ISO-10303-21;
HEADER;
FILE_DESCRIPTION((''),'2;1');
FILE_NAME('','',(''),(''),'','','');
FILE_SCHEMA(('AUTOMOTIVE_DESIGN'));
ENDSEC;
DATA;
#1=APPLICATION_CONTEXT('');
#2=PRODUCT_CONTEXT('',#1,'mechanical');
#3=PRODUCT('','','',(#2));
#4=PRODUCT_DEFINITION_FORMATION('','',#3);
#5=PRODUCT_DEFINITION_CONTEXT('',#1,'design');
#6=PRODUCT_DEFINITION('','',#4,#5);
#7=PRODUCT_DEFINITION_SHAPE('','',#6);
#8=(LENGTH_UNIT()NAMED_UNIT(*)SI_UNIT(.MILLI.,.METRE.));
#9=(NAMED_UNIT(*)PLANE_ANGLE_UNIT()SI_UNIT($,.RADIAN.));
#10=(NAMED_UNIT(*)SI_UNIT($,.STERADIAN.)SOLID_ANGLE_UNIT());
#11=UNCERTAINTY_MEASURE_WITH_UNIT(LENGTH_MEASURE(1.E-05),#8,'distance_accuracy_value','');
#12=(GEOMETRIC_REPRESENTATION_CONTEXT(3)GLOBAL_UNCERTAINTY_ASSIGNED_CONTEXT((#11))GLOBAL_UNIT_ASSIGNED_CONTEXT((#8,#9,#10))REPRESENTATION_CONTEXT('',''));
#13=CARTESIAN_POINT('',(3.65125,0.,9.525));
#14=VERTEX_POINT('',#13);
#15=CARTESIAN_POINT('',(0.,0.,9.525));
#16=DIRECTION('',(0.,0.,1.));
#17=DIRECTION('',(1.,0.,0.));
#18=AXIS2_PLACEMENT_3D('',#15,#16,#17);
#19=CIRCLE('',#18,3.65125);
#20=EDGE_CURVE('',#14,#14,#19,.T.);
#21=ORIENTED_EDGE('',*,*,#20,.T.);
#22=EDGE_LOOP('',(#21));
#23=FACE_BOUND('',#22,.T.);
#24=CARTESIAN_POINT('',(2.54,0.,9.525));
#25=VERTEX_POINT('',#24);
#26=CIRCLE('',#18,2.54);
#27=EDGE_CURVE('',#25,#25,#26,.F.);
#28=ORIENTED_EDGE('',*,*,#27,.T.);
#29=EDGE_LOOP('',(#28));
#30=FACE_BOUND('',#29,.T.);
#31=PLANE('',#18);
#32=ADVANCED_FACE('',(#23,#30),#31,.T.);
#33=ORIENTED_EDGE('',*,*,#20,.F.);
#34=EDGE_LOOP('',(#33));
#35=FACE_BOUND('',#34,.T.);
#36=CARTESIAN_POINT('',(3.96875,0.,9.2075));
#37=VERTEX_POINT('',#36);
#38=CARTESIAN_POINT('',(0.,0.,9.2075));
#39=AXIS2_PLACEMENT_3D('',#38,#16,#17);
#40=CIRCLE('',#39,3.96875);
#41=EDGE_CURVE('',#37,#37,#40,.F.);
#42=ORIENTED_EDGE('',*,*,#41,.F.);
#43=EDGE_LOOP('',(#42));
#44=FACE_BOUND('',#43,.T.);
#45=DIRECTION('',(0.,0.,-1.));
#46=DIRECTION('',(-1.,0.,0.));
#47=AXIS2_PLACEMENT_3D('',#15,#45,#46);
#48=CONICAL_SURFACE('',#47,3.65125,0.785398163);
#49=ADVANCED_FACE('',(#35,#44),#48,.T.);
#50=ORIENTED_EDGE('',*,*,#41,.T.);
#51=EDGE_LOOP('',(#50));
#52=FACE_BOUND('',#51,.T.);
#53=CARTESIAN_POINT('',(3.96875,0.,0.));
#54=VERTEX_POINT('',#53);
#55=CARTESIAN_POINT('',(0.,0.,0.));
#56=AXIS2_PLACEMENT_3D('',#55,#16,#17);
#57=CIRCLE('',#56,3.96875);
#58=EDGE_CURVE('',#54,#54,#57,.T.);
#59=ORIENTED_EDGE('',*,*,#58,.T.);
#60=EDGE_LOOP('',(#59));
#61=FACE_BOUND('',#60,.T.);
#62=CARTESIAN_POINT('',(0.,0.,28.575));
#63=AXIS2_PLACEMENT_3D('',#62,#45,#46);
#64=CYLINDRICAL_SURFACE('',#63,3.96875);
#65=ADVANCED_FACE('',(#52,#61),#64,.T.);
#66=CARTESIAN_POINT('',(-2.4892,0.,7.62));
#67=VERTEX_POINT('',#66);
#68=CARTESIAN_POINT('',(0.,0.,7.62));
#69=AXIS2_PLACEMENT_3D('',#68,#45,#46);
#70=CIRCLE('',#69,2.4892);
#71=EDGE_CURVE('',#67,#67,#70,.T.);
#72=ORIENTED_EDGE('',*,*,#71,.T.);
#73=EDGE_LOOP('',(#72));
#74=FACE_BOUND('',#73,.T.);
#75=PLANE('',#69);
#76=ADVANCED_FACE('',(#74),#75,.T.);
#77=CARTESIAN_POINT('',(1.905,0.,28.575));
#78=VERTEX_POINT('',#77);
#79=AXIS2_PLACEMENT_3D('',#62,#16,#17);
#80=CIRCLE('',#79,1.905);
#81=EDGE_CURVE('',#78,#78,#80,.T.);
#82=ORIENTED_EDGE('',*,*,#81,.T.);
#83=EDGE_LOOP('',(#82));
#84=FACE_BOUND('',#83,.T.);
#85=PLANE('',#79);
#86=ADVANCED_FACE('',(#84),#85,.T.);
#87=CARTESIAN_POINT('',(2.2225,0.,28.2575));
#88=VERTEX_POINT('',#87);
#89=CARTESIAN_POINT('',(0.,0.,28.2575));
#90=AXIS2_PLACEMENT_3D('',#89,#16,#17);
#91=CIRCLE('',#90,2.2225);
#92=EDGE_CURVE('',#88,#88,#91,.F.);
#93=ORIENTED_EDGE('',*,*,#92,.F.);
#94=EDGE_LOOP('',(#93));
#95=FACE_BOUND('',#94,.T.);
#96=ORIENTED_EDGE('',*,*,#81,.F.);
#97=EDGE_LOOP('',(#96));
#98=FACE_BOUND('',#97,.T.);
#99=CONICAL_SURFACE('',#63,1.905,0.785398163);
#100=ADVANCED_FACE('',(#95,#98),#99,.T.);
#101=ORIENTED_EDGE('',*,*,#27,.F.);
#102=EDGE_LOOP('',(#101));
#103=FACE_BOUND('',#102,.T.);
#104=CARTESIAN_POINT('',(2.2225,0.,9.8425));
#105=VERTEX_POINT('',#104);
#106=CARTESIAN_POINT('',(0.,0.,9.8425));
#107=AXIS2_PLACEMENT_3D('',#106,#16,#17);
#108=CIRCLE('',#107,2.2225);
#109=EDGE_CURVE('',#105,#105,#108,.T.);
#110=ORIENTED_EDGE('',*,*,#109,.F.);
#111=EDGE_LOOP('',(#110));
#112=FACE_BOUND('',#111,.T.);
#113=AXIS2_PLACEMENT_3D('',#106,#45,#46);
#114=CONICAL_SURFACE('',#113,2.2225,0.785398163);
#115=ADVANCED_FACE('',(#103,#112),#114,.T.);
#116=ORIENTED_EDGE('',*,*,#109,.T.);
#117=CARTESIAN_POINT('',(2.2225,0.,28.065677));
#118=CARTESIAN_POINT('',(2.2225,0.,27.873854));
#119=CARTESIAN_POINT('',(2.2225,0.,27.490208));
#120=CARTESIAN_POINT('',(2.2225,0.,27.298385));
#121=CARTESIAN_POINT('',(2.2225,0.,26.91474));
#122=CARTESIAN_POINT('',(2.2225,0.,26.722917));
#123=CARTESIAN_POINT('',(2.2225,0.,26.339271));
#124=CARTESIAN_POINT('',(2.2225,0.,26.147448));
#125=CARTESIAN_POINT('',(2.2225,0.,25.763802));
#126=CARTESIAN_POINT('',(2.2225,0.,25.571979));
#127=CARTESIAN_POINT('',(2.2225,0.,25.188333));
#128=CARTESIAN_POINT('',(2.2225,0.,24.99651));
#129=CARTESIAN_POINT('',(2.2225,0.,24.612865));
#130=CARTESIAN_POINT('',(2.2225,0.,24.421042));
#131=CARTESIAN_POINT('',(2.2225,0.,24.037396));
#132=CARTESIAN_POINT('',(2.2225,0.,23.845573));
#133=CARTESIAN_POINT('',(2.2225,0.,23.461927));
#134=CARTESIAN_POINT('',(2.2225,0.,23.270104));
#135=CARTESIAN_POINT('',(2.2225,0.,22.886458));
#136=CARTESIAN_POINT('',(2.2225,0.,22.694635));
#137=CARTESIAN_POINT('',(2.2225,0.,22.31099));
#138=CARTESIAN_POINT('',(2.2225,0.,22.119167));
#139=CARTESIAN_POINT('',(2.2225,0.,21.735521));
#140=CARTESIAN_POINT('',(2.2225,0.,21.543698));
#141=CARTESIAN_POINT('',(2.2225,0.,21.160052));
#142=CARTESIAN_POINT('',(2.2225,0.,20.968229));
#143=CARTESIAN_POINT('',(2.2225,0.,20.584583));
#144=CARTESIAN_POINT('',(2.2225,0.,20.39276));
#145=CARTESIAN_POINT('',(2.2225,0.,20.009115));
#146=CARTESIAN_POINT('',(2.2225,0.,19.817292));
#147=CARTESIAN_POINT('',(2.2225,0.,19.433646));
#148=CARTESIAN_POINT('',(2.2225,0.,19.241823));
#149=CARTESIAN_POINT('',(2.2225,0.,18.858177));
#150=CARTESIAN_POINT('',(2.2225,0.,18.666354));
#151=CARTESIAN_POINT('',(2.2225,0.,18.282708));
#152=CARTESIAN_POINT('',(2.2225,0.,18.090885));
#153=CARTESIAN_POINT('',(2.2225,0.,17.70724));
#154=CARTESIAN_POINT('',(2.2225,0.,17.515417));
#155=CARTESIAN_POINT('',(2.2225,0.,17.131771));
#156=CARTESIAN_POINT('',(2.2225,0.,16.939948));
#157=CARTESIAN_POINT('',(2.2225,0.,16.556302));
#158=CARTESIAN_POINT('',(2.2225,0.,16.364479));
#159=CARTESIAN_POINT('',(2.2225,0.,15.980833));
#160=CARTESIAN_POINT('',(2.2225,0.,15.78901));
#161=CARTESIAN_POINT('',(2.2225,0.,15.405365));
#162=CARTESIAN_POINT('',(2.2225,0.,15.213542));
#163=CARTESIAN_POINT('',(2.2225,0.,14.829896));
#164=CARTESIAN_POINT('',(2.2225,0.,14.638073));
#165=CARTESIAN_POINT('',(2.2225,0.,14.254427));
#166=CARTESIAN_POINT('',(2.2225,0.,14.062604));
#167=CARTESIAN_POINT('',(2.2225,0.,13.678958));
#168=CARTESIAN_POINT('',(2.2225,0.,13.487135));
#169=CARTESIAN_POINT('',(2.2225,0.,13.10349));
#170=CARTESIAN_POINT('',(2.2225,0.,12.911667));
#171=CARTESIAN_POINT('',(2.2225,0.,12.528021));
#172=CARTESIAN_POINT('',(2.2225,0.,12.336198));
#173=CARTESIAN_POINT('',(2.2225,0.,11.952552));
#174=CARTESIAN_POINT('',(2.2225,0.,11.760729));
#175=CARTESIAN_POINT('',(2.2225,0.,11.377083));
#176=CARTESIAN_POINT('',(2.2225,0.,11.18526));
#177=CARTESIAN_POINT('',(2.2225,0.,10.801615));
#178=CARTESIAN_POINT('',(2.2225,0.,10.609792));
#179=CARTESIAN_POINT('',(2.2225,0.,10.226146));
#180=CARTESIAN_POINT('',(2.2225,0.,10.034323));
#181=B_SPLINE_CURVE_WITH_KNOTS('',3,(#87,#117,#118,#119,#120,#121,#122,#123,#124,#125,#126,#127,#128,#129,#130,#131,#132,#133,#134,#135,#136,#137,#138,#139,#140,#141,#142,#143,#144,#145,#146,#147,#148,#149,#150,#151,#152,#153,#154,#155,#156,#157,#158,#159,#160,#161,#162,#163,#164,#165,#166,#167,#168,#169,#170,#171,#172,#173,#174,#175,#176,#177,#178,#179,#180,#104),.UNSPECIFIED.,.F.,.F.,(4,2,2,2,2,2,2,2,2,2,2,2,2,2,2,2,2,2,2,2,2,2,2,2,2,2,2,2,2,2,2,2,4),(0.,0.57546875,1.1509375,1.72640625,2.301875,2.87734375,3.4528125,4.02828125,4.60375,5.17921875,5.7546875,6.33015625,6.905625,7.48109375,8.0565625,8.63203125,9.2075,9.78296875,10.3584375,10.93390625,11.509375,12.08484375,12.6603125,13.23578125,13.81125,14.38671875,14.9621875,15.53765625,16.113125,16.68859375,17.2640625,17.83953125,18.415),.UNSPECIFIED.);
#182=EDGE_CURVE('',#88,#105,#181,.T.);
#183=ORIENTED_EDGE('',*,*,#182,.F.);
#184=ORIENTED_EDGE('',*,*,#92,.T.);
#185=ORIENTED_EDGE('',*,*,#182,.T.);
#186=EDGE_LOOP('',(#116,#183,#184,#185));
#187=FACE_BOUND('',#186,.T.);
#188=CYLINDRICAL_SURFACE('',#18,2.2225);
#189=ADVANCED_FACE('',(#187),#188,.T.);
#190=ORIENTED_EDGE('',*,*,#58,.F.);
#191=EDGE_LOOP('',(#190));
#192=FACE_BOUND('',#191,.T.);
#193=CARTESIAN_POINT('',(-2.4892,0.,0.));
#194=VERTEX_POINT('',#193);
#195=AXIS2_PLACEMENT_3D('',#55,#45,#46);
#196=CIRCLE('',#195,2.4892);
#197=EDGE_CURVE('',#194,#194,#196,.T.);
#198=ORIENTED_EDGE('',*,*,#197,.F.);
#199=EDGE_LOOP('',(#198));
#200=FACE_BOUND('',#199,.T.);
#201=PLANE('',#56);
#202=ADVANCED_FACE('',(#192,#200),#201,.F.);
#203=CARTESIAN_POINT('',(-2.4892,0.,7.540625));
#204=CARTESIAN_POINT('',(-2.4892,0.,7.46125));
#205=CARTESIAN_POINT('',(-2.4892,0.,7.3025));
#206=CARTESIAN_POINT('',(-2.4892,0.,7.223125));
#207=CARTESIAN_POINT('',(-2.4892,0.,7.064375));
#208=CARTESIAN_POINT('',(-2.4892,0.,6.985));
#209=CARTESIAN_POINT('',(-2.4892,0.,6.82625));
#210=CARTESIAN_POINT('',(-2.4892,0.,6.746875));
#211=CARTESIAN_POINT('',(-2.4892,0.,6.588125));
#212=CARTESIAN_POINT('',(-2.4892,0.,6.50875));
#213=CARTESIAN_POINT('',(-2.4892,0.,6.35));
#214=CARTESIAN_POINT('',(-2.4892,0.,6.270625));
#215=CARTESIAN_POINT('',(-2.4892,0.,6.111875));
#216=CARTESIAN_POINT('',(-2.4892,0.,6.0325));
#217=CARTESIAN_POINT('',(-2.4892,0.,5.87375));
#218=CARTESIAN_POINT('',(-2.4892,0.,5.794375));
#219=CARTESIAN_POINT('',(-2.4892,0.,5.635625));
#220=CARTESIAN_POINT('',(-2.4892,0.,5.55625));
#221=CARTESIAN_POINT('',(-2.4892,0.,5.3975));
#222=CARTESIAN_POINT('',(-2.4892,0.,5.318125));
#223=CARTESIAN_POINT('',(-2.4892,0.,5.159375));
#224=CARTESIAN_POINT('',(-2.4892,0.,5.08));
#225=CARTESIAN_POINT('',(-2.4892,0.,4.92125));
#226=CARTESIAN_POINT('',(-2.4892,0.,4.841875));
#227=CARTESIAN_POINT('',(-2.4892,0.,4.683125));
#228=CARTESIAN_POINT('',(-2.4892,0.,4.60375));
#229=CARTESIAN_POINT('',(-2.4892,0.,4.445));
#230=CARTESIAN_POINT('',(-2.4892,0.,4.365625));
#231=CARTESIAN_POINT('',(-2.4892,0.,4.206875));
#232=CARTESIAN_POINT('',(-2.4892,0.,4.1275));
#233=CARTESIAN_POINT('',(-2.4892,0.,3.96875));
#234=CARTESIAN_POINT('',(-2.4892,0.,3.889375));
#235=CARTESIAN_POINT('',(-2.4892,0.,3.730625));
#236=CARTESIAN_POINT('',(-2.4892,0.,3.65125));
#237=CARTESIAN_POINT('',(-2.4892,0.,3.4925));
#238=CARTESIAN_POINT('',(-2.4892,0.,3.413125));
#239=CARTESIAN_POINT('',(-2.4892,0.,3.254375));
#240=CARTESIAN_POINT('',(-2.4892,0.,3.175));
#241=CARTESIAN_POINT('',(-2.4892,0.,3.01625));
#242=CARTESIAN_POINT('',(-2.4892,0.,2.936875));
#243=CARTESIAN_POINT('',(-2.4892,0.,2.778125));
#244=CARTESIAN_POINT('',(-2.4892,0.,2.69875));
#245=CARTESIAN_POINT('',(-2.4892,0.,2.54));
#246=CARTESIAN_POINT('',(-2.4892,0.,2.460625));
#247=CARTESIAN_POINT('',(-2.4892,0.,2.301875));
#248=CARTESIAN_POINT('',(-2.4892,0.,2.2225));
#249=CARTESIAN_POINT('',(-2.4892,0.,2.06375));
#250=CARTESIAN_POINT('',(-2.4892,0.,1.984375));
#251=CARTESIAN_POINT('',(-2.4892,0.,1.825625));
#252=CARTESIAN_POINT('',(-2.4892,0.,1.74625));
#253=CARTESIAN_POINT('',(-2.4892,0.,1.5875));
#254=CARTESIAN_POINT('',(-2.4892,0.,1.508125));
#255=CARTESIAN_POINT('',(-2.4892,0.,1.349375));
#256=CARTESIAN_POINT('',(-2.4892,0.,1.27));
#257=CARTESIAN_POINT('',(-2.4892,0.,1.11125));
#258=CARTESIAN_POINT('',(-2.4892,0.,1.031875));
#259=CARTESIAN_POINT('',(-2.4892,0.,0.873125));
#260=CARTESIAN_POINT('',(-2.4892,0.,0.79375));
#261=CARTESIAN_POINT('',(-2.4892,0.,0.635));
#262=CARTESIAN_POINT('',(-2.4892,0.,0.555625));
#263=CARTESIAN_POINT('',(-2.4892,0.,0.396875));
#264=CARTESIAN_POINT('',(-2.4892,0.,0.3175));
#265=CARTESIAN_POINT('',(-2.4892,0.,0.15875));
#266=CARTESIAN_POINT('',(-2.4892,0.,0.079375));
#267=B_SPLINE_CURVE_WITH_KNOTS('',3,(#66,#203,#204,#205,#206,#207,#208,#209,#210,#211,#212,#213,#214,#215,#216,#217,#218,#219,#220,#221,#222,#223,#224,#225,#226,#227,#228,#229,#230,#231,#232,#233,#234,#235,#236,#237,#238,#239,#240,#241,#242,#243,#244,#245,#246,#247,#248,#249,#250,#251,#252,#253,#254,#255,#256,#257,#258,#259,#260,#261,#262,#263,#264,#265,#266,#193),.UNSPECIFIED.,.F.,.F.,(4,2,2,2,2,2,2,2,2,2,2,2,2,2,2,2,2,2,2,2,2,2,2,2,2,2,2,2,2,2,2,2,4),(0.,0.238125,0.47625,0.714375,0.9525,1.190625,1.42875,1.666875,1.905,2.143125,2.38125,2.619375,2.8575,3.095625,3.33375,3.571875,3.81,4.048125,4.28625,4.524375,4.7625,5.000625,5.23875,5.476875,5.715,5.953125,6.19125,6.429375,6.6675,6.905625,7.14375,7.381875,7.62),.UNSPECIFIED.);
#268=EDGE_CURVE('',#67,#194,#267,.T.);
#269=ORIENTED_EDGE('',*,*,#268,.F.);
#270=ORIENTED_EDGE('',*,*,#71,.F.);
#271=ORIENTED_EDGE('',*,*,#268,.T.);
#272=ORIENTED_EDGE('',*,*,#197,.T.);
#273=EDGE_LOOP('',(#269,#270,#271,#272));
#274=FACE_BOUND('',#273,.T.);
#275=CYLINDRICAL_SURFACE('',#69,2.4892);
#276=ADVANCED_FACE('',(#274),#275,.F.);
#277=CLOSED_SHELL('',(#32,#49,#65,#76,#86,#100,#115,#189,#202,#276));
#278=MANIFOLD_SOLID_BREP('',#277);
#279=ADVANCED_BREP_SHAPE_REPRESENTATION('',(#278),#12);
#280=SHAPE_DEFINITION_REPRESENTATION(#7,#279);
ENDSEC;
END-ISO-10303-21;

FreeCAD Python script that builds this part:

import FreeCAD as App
import Part
import Sketcher
Q = App.Units.Quantity


def edges_at(feature, points):
    """Names of the edges that pass closest to the given points."""
    edges = feature.Shape.Edges
    near = lambda p: min(range(len(edges)), key=lambda i: edges[i].distToShape(Part.Vertex(*p))[0])
    return sorted({f"Edge{near(p) + 1}" for p in points})

doc = App.newDocument("Part")
params = doc.addObject("Spreadsheet::Sheet", "Params")
for row, (alias, value) in enumerate([
    ("sketch1_diameter", "0.3125 in"),
    ("pad1_length", "1.125 in"),
    ("sketch2_diameter", "0.3125 in"),
    ("sketch2_diameter2", "0.175 in"),
    ("pocket1_length", "0.75 in"),
    ("sketch3_diameter", "0.196 in"),
    ("pocket2_length", "0.3 in"),
    ("chamfer_size", "0.0125 in"),
], start=1):
    params.set(f"A{row}", alias)
    params.set(f"B{row}", "=" + value)
    params.setAlias(f"B{row}", alias)

body = doc.addObject("PartDesign::Body", "Body")

# Sketch on XY plane
sketch1 = body.newObject("Sketcher::SketchObject", "Sketch")
sketch1.AttachmentSupport = (doc.getObject("XY_Plane"), [""])
sketch1.MapMode = "FlatFace"
sketch1.addGeometry(Part.Circle(App.Vector(0, 0, 0), App.Vector(0, 0, 1), 3.96875), False)
sketch1.addConstraint(Sketcher.Constraint("Coincident", 0, 3, -1, 1))
sketch1.addConstraint(Sketcher.Constraint("Diameter", 0, Q("0.3125 in")))
sketch1.setExpression("Constraints[1]", "Params.sketch1_diameter")
pad1 = body.newObject("PartDesign::Pad", "Pad")
pad1.Profile = sketch1
pad1.setExpression("Length", "Params.pad1_length")

# Sketch on XY plane
sketch2 = body.newObject("Sketcher::SketchObject", "Sketch001")
sketch2.AttachmentSupport = (doc.getObject("XY_Plane"), [""])
sketch2.MapMode = "FlatFace"
sketch2.AttachmentOffset = App.Placement(App.Vector(0, 0, 0.375 * 25.4), App.Rotation())
sketch2.addGeometry(Part.Circle(App.Vector(0, 0, 0), App.Vector(0, 0, 1), 3.96875), False)
sketch2.addGeometry(Part.Circle(App.Vector(0, 0, 0), App.Vector(0, 0, 1), 2.2225), False)
sketch2.addConstraint(Sketcher.Constraint("Coincident", 0, 3, -1, 1))
sketch2.addConstraint(Sketcher.Constraint("Coincident", 1, 3, -1, 1))
sketch2.addConstraint(Sketcher.Constraint("Diameter", 0, Q("0.3125 in")))
sketch2.addConstraint(Sketcher.Constraint("Diameter", 1, Q("0.175 in")))
sketch2.setExpression("Constraints[2]", "Params.sketch2_diameter")
sketch2.setExpression("Constraints[3]", "Params.sketch2_diameter2")
pocket1 = body.newObject("PartDesign::Pocket", "Pocket")
pocket1.Profile = sketch2
pocket1.setExpression("Length", "Params.pocket1_length")
pocket1.Reversed = True

# Sketch on XY plane
sketch3 = body.newObject("Sketcher::SketchObject", "Sketch002")
sketch3.AttachmentSupport = (doc.getObject("XY_Plane"), [""])
sketch3.MapMode = "FlatFace"
sketch3.addGeometry(Part.Circle(App.Vector(0, 0, 0), App.Vector(0, 0, 1), 2.4892), False)
sketch3.addConstraint(Sketcher.Constraint("Coincident", 0, 3, -1, 1))
sketch3.addConstraint(Sketcher.Constraint("Diameter", 0, Q("0.196 in")))
sketch3.setExpression("Constraints[1]", "Params.sketch3_diameter")
pocket2 = body.newObject("PartDesign::Pocket", "Pocket001")
pocket2.Profile = sketch3
pocket2.setExpression("Length", "Params.pocket2_length")
pocket2.Reversed = True
doc.recompute()

chamfer = body.newObject("PartDesign::Chamfer", "Chamfer")
chamfer.Base = (pocket2, edges_at(pocket2, [(-2.223, 0, 28.575), (-3.969, 0, 9.525), (-2.223, 0, 9.525)]))
chamfer.setExpression("Size", "Params.chamfer_size")

doc.recompute()
